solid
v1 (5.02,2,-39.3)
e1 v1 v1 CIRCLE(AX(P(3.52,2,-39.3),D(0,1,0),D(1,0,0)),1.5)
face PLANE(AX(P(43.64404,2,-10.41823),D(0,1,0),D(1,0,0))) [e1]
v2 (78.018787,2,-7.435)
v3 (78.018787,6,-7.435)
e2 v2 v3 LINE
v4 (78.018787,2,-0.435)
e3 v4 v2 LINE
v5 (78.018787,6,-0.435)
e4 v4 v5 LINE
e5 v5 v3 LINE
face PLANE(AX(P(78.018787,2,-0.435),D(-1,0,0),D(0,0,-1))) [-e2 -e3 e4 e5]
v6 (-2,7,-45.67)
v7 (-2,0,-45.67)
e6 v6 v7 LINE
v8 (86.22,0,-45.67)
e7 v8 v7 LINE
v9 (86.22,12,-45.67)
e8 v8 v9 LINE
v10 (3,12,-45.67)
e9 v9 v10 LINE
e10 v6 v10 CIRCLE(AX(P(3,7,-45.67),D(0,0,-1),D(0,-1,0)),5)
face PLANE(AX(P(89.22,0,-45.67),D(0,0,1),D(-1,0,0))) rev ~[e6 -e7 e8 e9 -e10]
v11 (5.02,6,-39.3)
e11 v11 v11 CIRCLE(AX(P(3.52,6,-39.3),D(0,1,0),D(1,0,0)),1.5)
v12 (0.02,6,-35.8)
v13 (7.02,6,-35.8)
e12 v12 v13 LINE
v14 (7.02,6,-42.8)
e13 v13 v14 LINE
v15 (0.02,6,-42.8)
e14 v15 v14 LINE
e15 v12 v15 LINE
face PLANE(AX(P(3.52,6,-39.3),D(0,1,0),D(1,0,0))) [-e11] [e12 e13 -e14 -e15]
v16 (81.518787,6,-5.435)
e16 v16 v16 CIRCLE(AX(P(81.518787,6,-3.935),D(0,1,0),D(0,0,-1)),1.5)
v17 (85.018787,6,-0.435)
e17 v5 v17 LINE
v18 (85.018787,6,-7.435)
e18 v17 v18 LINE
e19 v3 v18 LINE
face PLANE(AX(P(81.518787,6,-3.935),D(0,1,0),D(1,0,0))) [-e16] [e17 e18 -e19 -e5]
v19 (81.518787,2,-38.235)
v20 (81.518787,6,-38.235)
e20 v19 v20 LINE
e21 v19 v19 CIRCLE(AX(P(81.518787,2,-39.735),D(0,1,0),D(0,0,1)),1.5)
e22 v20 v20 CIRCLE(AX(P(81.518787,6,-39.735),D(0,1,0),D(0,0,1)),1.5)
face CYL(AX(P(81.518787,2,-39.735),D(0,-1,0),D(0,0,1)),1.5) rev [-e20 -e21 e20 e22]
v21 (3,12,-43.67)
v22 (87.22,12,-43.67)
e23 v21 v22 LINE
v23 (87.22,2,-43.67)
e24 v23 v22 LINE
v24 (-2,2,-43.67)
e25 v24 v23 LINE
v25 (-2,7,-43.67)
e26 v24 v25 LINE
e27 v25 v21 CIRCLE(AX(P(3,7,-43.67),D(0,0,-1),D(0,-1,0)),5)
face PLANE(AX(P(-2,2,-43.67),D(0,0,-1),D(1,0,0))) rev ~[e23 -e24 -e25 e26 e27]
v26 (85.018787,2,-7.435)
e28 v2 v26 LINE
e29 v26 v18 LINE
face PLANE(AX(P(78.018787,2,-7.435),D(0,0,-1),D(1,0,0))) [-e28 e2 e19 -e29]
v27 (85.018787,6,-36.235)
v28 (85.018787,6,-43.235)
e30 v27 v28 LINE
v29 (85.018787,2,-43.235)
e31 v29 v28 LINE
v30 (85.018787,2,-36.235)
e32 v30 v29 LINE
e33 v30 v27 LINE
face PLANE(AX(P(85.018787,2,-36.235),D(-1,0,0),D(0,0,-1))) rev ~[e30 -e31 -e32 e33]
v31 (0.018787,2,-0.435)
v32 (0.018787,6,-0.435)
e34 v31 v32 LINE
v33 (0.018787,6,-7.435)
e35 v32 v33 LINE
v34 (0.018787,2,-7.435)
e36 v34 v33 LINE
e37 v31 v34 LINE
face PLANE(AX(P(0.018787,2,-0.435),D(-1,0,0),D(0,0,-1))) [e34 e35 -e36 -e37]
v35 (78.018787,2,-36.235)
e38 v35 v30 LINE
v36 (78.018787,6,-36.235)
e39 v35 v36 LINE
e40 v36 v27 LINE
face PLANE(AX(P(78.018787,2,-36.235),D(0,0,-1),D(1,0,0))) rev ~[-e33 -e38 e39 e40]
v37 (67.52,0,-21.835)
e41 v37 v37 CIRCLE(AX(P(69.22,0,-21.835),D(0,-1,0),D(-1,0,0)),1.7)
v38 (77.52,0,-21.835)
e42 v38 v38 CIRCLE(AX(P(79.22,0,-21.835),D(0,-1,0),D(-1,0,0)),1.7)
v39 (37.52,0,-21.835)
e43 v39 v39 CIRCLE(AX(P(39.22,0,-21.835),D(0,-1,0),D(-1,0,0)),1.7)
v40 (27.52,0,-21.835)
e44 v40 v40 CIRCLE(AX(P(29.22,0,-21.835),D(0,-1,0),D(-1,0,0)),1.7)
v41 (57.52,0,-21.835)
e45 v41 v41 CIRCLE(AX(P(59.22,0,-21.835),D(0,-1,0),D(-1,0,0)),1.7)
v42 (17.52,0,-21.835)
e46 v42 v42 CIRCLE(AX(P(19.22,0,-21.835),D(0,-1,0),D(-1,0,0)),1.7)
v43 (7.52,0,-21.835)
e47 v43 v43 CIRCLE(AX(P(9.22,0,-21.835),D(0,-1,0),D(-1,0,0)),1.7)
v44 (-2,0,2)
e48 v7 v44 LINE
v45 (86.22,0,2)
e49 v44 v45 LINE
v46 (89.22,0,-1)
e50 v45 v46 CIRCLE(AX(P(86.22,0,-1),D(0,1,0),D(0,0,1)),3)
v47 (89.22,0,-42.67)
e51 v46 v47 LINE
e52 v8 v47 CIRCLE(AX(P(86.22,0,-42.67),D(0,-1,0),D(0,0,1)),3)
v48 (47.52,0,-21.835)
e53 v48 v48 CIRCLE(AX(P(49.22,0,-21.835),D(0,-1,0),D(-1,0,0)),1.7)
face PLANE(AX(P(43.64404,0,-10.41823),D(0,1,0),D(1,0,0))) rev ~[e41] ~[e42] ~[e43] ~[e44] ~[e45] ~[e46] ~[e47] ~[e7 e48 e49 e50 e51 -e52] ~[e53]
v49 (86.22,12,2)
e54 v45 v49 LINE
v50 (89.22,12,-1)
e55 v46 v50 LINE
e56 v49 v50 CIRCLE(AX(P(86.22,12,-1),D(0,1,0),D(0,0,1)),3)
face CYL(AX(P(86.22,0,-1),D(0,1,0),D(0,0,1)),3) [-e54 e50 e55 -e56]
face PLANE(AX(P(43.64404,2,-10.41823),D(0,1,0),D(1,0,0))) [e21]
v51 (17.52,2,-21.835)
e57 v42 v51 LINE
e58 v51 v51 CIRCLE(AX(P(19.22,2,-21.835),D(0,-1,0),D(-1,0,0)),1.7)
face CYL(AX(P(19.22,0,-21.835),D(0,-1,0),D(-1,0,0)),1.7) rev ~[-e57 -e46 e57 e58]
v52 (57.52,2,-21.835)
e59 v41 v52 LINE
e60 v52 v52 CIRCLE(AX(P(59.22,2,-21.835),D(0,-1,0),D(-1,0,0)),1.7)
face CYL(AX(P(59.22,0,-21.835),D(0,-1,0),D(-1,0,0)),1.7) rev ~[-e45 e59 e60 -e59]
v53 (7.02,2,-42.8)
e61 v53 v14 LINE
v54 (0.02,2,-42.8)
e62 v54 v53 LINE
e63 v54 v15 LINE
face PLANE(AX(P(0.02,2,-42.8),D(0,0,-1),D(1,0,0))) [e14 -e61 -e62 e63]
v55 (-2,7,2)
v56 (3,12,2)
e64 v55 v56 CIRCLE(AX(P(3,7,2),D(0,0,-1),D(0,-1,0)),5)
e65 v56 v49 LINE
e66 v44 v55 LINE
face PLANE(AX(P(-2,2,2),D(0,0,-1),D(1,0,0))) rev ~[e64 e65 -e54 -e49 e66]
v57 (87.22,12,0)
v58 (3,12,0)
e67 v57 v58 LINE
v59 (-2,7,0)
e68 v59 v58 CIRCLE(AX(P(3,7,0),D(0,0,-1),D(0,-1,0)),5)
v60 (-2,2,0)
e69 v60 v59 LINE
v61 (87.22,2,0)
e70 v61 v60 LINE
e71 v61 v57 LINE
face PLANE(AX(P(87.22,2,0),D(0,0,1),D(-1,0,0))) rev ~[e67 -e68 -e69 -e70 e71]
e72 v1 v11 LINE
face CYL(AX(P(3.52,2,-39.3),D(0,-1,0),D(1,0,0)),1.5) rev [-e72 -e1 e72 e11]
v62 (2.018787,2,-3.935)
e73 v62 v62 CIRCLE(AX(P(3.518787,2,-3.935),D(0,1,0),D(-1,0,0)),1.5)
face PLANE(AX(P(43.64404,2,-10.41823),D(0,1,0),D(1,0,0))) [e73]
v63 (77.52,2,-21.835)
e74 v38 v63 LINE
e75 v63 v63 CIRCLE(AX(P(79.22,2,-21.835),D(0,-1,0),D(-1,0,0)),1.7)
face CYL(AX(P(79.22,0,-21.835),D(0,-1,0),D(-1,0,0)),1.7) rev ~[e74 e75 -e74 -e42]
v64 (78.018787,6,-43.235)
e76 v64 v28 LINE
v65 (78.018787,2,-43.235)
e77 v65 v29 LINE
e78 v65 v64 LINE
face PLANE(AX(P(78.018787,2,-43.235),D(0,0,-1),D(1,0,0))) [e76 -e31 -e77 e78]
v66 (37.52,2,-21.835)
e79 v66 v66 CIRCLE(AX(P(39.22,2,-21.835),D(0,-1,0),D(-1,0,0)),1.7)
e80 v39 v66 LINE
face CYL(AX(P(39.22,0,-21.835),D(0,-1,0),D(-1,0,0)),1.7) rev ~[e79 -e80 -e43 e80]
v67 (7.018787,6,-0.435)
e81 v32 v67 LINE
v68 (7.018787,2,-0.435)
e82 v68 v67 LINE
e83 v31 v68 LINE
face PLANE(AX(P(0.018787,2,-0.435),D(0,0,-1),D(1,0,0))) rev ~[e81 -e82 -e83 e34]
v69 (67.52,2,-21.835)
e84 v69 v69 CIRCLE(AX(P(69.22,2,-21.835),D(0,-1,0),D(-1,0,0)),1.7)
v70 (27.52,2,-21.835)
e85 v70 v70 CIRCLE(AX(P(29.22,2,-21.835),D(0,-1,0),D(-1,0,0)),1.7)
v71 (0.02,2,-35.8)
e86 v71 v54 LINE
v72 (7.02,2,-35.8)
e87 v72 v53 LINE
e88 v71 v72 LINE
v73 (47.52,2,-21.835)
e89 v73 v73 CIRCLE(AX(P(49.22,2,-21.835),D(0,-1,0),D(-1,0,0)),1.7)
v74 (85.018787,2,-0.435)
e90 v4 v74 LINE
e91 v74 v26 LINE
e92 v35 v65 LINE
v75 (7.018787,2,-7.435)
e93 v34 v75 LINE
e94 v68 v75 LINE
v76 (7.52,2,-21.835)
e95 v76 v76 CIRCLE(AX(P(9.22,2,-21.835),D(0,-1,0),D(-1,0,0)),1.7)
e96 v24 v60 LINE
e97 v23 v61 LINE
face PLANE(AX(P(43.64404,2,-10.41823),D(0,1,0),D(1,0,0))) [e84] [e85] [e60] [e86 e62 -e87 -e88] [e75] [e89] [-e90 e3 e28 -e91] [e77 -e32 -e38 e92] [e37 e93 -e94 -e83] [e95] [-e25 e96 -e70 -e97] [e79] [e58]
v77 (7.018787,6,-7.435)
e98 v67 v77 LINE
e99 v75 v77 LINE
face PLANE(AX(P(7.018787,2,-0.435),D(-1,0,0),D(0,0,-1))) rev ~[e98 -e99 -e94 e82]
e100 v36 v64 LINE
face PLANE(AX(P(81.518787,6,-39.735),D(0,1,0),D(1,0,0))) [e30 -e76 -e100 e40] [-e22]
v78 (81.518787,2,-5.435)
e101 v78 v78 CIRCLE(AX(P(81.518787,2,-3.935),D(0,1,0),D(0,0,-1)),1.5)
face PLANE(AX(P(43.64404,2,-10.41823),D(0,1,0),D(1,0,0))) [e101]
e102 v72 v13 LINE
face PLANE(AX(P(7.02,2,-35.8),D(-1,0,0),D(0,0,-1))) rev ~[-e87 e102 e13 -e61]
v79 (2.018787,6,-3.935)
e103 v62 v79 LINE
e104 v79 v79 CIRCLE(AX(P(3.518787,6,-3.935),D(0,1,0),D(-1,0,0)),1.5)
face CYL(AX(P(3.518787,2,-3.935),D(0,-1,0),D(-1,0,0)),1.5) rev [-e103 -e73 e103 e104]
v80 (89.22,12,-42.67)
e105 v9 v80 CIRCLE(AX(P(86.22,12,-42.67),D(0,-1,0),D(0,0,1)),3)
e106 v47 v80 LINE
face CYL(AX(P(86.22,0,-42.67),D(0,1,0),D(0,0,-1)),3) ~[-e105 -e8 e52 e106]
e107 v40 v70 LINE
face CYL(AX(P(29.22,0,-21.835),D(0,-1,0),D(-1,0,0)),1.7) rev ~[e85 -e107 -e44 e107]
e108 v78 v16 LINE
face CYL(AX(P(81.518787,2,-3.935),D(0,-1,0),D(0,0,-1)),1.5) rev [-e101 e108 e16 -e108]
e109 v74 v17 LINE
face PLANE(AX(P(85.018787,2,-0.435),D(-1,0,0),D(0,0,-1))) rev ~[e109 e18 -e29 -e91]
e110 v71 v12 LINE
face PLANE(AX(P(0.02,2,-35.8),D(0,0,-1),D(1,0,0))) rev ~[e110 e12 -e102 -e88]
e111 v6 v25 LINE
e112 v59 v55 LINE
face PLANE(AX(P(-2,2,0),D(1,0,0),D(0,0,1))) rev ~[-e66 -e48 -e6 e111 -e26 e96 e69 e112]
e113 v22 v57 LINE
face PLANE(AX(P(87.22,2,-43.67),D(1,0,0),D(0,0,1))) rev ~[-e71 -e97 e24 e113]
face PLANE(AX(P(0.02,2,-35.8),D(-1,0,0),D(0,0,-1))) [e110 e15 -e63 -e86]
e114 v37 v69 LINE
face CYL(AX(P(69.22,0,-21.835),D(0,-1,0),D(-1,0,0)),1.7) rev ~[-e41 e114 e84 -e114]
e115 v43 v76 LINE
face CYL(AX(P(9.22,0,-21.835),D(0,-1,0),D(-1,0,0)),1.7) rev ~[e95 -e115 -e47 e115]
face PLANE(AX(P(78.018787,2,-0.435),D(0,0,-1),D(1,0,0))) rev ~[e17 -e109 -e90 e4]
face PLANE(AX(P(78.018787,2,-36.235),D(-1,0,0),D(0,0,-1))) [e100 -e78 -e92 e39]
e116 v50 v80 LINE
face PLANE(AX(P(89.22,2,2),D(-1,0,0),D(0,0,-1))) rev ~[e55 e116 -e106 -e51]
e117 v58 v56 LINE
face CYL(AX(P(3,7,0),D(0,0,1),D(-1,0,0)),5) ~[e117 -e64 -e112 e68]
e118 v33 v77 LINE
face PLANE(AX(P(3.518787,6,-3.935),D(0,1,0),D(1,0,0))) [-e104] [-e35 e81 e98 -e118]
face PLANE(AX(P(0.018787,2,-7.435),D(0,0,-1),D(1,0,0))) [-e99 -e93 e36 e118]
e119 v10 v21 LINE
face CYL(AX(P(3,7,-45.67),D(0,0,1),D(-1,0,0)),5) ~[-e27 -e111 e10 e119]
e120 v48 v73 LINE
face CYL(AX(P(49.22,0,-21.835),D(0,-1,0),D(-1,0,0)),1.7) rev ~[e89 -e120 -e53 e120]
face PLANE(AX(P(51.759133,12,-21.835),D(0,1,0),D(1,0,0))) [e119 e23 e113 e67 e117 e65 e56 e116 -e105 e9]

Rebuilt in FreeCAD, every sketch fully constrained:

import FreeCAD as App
import Part
import Sketcher
from FreeCAD import Vector


def edges_at(feature, points):
    """Names of the edges that pass closest to the given points."""
    edges = feature.Shape.Edges
    near = lambda p: min(range(len(edges)), key=lambda i: edges[i].distToShape(Part.Vertex(*p))[0])
    return sorted({f"Edge{near(p) + 1}" for p in points})

doc = App.newDocument("Part")
body = doc.addObject("PartDesign::Body", "Body")

# Sketch on XZ plane
sketch1 = body.newObject("Sketcher::SketchObject", "Sketch")
sketch1.AttachmentSupport = (doc.getObject("XZ_Plane"), [""])
sketch1.MapMode = "FlatFace"
sketch1.addGeometry([
    Part.LineSegment(Vector(-2, 2, 0), Vector(89.2, 2, 0)),  # 0
    Part.LineSegment(Vector(89.2, 2, 0), Vector(89.2, -45.7, 0)),  # 1
    Part.LineSegment(Vector(89.2, -45.7, 0), Vector(-2, -45.7, 0)),  # 2
    Part.LineSegment(Vector(-2, -45.7, 0), Vector(-2, 2, 0)),  # 3
    Part.Circle(Vector(79.2, -21.8, 0), Vector(0, 0, 1), 1.7),  # 4
    Part.Circle(Vector(69.2, -21.8, 0), Vector(0, 0, 1), 1.7),  # 5
    Part.Circle(Vector(59.2, -21.8, 0), Vector(0, 0, 1), 1.7),  # 6
    Part.Circle(Vector(49.2, -21.8, 0), Vector(0, 0, 1), 1.7),  # 7
    Part.Circle(Vector(39.2, -21.8, 0), Vector(0, 0, 1), 1.7),  # 8
    Part.Circle(Vector(29.2, -21.8, 0), Vector(0, 0, 1), 1.7),  # 9
    Part.Circle(Vector(19.2, -21.8, 0), Vector(0, 0, 1), 1.7),  # 10
    Part.Circle(Vector(9.2, -21.8, 0), Vector(0, 0, 1), 1.7),  # 11
], False)
sketch1.addConstraint([
    Sketcher.Constraint("Coincident", 0, 2, 1, 1),
    Sketcher.Constraint("Coincident", 1, 2, 2, 1),
    Sketcher.Constraint("Coincident", 2, 2, 3, 1),
    Sketcher.Constraint("Coincident", 3, 2, 0, 1),
    Sketcher.Constraint("Horizontal", 0),
    Sketcher.Constraint("Vertical", 1),
    Sketcher.Constraint("Horizontal", 2),
    Sketcher.Constraint("Vertical", 3),
    Sketcher.Constraint("Equal", 4, 5),
    Sketcher.Constraint("Equal", 5, 6),
    Sketcher.Constraint("Equal", 6, 7),
    Sketcher.Constraint("Equal", 7, 8),
    Sketcher.Constraint("Equal", 8, 9),
    Sketcher.Constraint("Equal", 9, 10),
    Sketcher.Constraint("Equal", 10, 11),
    Sketcher.Constraint("Horizontal", 4, 3, 5, 3),
    Sketcher.Constraint("Horizontal", 5, 3, 6, 3),
    Sketcher.Constraint("Horizontal", 6, 3, 7, 3),
    Sketcher.Constraint("Horizontal", 7, 3, 8, 3),
    Sketcher.Constraint("Horizontal", 8, 3, 9, 3),
    Sketcher.Constraint("Horizontal", 9, 3, 10, 3),
    Sketcher.Constraint("Horizontal", 10, 3, 11, 3),
    Sketcher.Constraint("Diameter", 4, 3.4),
    Sketcher.Constraint("DistanceY", -1, 1, 0, 2, 2.0),
    Sketcher.Constraint("DistanceX", 2, 2, -1, 1, 2.0),
    Sketcher.Constraint("DistanceX", 5, 3, 4, 3, 10.0),
    Sketcher.Constraint("DistanceX", 6, 3, 5, 3, 10.0),
    Sketcher.Constraint("DistanceX", 7, 3, 6, 3, 10.0),
    Sketcher.Constraint("DistanceX", 8, 3, 7, 3, 10.0),
    Sketcher.Constraint("DistanceX", 9, 3, 8, 3, 10.0),
    Sketcher.Constraint("DistanceX", 10, 3, 9, 3, 10.0),
    Sketcher.Constraint("DistanceX", 11, 3, 10, 3, 10.0),
    Sketcher.Constraint("DistanceX", 4, 3, 0, 2, 10.0),
    Sketcher.Constraint("DistanceX", 0, 1, 0, 2, 91.22),
    Sketcher.Constraint("DistanceY", 1, 2, 1, 1, 47.67),
    Sketcher.Constraint("DistanceY", 4, 3, -1, 1, 21.835),
])
pad1 = body.newObject("PartDesign::Pad", "Pad")
pad1.Profile = sketch1
pad1.Length = 2
pad1.Reversed = True

# Sketch on XZ plane
sketch2 = body.newObject("Sketcher::SketchObject", "Sketch001")
sketch2.AttachmentSupport = (doc.getObject("XZ_Plane"), [""])
sketch2.MapMode = "FlatFace"
sketch2.AttachmentOffset = App.Placement(Vector(0, 0, -2), App.Rotation())
sketch2.addGeometry([
    Part.LineSegment(Vector(-2, 0, 0), Vector(-2, 2, 0)),  # 0
    Part.LineSegment(Vector(-2, 2, 0), Vector(89.2, 2, 0)),  # 1
    Part.LineSegment(Vector(89.2, 2, 0), Vector(89.2, -45.7, 0)),  # 2
    Part.LineSegment(Vector(89.2, -45.7, 0), Vector(-2, -45.7, 0)),  # 3
    Part.LineSegment(Vector(-2, -45.7, 0), Vector(-2, -43.7, 0)),  # 4
    Part.LineSegment(Vector(-2, -43.7, 0), Vector(87.2, -43.7, 0)),  # 5
    Part.LineSegment(Vector(87.2, -43.7, 0), Vector(87.2, 0, 0)),  # 6
    Part.LineSegment(Vector(87.2, 0, 0), Vector(-2, 0, 0)),  # 7
], False)
sketch2.addConstraint([
    Sketcher.Constraint("Coincident", 0, 2, 1, 1),
    Sketcher.Constraint("Coincident", 1, 2, 2, 1),
    Sketcher.Constraint("Coincident", 2, 2, 3, 1),
    Sketcher.Constraint("Coincident", 3, 2, 4, 1),
    Sketcher.Constraint("Coincident", 4, 2, 5, 1),
    Sketcher.Constraint("Coincident", 5, 2, 6, 1),
    Sketcher.Constraint("Coincident", 6, 2, 7, 1),
    Sketcher.Constraint("Coincident", 7, 2, 0, 1),
    Sketcher.Constraint("Vertical", 0),
    Sketcher.Constraint("Horizontal", 1),
    Sketcher.Constraint("Vertical", 2),
    Sketcher.Constraint("Horizontal", 3),
    Sketcher.Constraint("Vertical", 4),
    Sketcher.Constraint("Horizontal", 5),
    Sketcher.Constraint("Vertical", 6),
    Sketcher.Constraint("Horizontal", 7),
    Sketcher.Constraint("PointOnObject", 6, 2, -1),
    Sketcher.Constraint("Vertical", 0, 2, 3, 2),
    Sketcher.Constraint("Equal", 0, 4),
    Sketcher.Constraint("DistanceY", 0, 1, 0, 2, 2.0),
    Sketcher.Constraint("DistanceX", 0, 2, -1, 1, 2.0),
    Sketcher.Constraint("DistanceX", 5, 2, 2, 2, 2.0),
    Sketcher.Constraint("DistanceX", 1, 1, 1, 2, 91.22),
    Sketcher.Constraint("DistanceY", 2, 2, 2, 1, 47.67),
])
pad2 = body.newObject("PartDesign::Pad", "Pad001")
pad2.Profile = sketch2
pad2.Length = 10
pad2.Reversed = True

# Sketch on XZ plane
sketch3 = body.newObject("Sketcher::SketchObject", "Sketch002")
sketch3.AttachmentSupport = (doc.getObject("XZ_Plane"), [""])
sketch3.MapMode = "FlatFace"
sketch3.AttachmentOffset = App.Placement(Vector(0, 0, -2), App.Rotation())
sketch3.addGeometry([
    Part.LineSegment(Vector(78, -43.2, 0), Vector(78, -36.2, 0)),  # 0
    Part.LineSegment(Vector(78, -36.2, 0), Vector(85, -36.2, 0)),  # 1
    Part.LineSegment(Vector(85, -36.2, 0), Vector(85, -43.2, 0)),  # 2
    Part.LineSegment(Vector(85, -43.2, 0), Vector(78, -43.2, 0)),  # 3
    Part.Circle(Vector(81.5, -39.7, 0), Vector(0, 0, 1), 1.5),  # 4
    Part.LineSegment(Vector(78, -7.4, 0), Vector(78, -0.4, 0)),  # 5
    Part.LineSegment(Vector(78, -0.4, 0), Vector(85, -0.4, 0)),  # 6
    Part.LineSegment(Vector(85, -0.4, 0), Vector(85, -7.4, 0)),  # 7
    Part.LineSegment(Vector(85, -7.4, 0), Vector(78, -7.4, 0)),  # 8
    Part.Circle(Vector(81.5, -3.9, 0), Vector(0, 0, 1), 1.5),  # 9
    Part.LineSegment(Vector(0, -42.8, 0), Vector(0, -35.8, 0)),  # 10
    Part.LineSegment(Vector(0, -35.8, 0), Vector(7, -35.8, 0)),  # 11
    Part.LineSegment(Vector(7, -35.8, 0), Vector(7, -42.8, 0)),  # 12
    Part.LineSegment(Vector(7, -42.8, 0), Vector(0, -42.8, 0)),  # 13
    Part.Circle(Vector(3.5, -39.3, 0), Vector(0, 0, 1), 1.5),  # 14
    Part.LineSegment(Vector(0, -7.4, 0), Vector(0, -0.4, 0)),  # 15
    Part.LineSegment(Vector(0, -0.4, 0), Vector(7, -0.4, 0)),  # 16
    Part.LineSegment(Vector(7, -0.4, 0), Vector(7, -7.4, 0)),  # 17
    Part.LineSegment(Vector(7, -7.4, 0), Vector(0, -7.4, 0)),  # 18
    Part.Circle(Vector(3.5, -3.9, 0), Vector(0, 0, 1), 1.5),  # 19
], False)
sketch3.addConstraint([
    Sketcher.Constraint("Coincident", 0, 2, 1, 1),
    Sketcher.Constraint("Coincident", 1, 2, 2, 1),
    Sketcher.Constraint("Coincident", 2, 2, 3, 1),
    Sketcher.Constraint("Coincident", 3, 2, 0, 1),
    Sketcher.Constraint("Coincident", 5, 2, 6, 1),
    Sketcher.Constraint("Coincident", 6, 2, 7, 1),
    Sketcher.Constraint("Coincident", 7, 2, 8, 1),
    Sketcher.Constraint("Coincident", 8, 2, 5, 1),
    Sketcher.Constraint("Coincident", 10, 2, 11, 1),
    Sketcher.Constraint("Coincident", 11, 2, 12, 1),
    Sketcher.Constraint("Coincident", 12, 2, 13, 1),
    Sketcher.Constraint("Coincident", 13, 2, 10, 1),
    Sketcher.Constraint("Coincident", 15, 2, 16, 1),
    Sketcher.Constraint("Coincident", 16, 2, 17, 1),
    Sketcher.Constraint("Coincident", 17, 2, 18, 1),
    Sketcher.Constraint("Coincident", 18, 2, 15, 1),
    Sketcher.Constraint("Vertical", 0),
    Sketcher.Constraint("Horizontal", 1),
    Sketcher.Constraint("Vertical", 2),
    Sketcher.Constraint("Horizontal", 3),
    Sketcher.Constraint("Vertical", 5),
    Sketcher.Constraint("Horizontal", 6),
    Sketcher.Constraint("Vertical", 7),
    Sketcher.Constraint("Horizontal", 8),
    Sketcher.Constraint("Vertical", 10),
    Sketcher.Constraint("Horizontal", 11),
    Sketcher.Constraint("Vertical", 12),
    Sketcher.Constraint("Horizontal", 13),
    Sketcher.Constraint("Vertical", 15),
    Sketcher.Constraint("Horizontal", 16),
    Sketcher.Constraint("Vertical", 17),
    Sketcher.Constraint("Horizontal", 18),
    Sketcher.Constraint("Equal", 4, 9),
    Sketcher.Constraint("Equal", 9, 14),
    Sketcher.Constraint("Equal", 14, 19),
    Sketcher.Constraint("Horizontal", 9, 3, 19, 3),
    Sketcher.Constraint("Horizontal", 6, 2, 15, 2),
    Sketcher.Constraint("Horizontal", 8, 2, 17, 2),
    Sketcher.Constraint("Vertical", 4, 3, 9, 3),
    Sketcher.Constraint("Vertical", 3, 2, 5, 2),
    Sketcher.Constraint("Vertical", 2, 2, 6, 2),
    Sketcher.Constraint("Equal", 8, 11),
    Sketcher.Constraint("Equal", 13, 16),
    Sketcher.Constraint("Equal", 18, 0),
    Sketcher.Constraint("Equal", 2, 5),
    Sketcher.Constraint("Equal", 7, 10),
    Sketcher.Constraint("Diameter", 4, 3.0),
    Sketcher.Constraint("DistanceX", 1, 1, 1, 2, 7.0),
    Sketcher.Constraint("DistanceX", 19, 3, 9, 3, 78.0),
    Sketcher.Constraint("DistanceY", 14, 3, -1, 1, 39.3),
    Sketcher.Constraint("DistanceY", 10, 2, -1, 1, 35.8),
    Sketcher.Constraint("DistanceY", 4, 3, 9, 3, 35.8),
    Sketcher.Constraint("DistanceX", 0, 2, 4, 3, 3.5),
    Sketcher.Constraint("DistanceY", 4, 3, 0, 2, 3.5),
    Sketcher.Constraint("DistanceY", 9, 3, 5, 2, 3.5),
    Sketcher.Constraint("DistanceX", 10, 2, 14, 3, 3.5),
    Sketcher.Constraint("DistanceX", 15, 2, 19, 3, 3.5),
    Sketcher.Constraint("DistanceX", -1, 1, 14, 3, 3.52),
    Sketcher.Constraint("DistanceY", 4, 3, -1, 1, 39.735),
    Sketcher.Constraint("DistanceX", -1, 1, 4, 3, 81.518787),
])
pad3 = body.newObject("PartDesign::Pad", "Pad002")
pad3.Profile = sketch3
pad3.Length = 4
pad3.Reversed = True
doc.recompute()

fillet = body.newObject("PartDesign::Fillet", "Fillet")
fillet.Base = (pad3, edges_at(pad3, [(-2, 12, -44.67), (-2, 12, 1)]))
fillet.Radius = 5
doc.recompute()

fillet2 = body.newObject("PartDesign::Fillet", "Fillet001")
fillet2.Base = (fillet, edges_at(fillet, [(89.22, 6, -45.67), (89.22, 6, 2)]))
fillet2.Radius = 3

doc.recompute()
